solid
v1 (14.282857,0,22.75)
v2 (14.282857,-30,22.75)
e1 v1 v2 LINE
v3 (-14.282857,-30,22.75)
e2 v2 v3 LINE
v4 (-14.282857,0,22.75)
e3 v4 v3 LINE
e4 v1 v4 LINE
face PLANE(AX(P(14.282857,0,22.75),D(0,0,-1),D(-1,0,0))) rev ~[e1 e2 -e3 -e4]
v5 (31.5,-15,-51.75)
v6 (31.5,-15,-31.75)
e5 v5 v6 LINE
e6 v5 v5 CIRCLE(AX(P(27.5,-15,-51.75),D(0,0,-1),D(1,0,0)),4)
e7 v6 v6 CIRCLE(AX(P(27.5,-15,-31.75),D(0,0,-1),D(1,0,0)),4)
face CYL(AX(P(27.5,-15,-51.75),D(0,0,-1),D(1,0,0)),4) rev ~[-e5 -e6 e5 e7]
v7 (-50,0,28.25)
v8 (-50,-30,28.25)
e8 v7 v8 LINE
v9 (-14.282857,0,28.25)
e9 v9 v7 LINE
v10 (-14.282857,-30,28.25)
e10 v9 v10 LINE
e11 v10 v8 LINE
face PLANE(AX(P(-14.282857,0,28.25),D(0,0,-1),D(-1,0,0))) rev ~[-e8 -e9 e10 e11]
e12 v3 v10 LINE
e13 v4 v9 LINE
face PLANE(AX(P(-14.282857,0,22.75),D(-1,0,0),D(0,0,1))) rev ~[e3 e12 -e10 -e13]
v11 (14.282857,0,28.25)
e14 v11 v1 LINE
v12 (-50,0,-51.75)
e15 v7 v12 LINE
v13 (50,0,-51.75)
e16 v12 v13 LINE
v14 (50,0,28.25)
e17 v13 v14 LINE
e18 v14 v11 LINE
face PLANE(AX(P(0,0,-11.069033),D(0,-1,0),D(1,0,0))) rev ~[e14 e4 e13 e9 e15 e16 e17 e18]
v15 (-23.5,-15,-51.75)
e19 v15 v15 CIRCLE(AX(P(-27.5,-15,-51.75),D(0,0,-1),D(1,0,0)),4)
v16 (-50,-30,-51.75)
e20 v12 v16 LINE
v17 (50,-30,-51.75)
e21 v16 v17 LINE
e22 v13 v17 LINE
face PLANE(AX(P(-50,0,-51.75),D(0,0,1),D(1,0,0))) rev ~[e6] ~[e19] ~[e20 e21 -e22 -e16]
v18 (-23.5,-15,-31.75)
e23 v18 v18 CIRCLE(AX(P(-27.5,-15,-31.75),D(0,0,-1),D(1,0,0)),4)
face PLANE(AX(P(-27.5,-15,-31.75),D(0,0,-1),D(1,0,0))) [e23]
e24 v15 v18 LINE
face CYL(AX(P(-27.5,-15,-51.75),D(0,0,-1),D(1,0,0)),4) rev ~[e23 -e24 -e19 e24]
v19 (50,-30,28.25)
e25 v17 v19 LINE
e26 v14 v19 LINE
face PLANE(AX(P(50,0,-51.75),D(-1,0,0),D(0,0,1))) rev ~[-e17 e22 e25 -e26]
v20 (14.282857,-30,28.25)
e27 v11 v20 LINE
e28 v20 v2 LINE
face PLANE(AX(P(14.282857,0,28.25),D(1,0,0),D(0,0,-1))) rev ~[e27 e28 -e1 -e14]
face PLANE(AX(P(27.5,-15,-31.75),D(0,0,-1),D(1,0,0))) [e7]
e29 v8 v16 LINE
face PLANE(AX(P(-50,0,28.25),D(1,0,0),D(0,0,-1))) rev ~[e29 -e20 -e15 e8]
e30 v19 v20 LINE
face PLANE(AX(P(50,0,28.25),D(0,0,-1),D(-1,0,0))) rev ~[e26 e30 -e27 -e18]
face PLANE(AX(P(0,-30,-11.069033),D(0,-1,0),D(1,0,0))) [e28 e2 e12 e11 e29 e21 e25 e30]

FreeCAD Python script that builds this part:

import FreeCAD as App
import Part
import Sketcher


def add_polygon(sketch, points):
    """Adds a closed chain of lines whose ends are joined by coincident constraints."""
    first, n = sketch.GeometryCount, len(points)
    for a, b in zip(points, points[1:] + points[:1]):
        sketch.addGeometry(Part.LineSegment(App.Vector(*a, 0), App.Vector(*b, 0)), False)
    for i in range(n):
        sketch.addConstraint(Sketcher.Constraint("Coincident", first + i, 2, first + (i + 1) % n, 1))

doc = App.newDocument("Part")
body = doc.addObject("PartDesign::Body", "Body")

# Sketch on XZ plane
sketch1 = doc.addObject("Sketcher::SketchObject", "Sketch")
body.addObject(sketch1)
sketch1.AttachmentSupport = (doc.XZ_Plane, [""])
sketch1.MapMode = "FlatFace"
add_polygon(sketch1, [(-50, 28), (-50, -52), (50, -52), (50, 28), (14, 28), (14, 23), (-14, 23), (-14, 28)])  # lines 0-7
sketch1.addConstraint([
    Sketcher.Constraint("Vertical", 0),
    Sketcher.Constraint("Horizontal", 1),
    Sketcher.Constraint("Vertical", 2),
    Sketcher.Constraint("Horizontal", 3),
    Sketcher.Constraint("Vertical", 4),
    Sketcher.Constraint("Horizontal", 5),
    Sketcher.Constraint("Vertical", 6),
    Sketcher.Constraint("Horizontal", 7),
    Sketcher.Constraint("Symmetric", 3, 2, 6, 2, -2),
    Sketcher.Constraint("Equal", 3, 7),
    Sketcher.Constraint("DistanceX", 1, 1, 1, 2, 100.0),
    Sketcher.Constraint("DistanceY", 0, 2, 0, 1, 80.0),
    Sketcher.Constraint("DistanceY", 4, 2, 4, 1, 5.5),
    Sketcher.Constraint("DistanceY", 0, 2, -1, 1, 51.75),
    Sketcher.Constraint("DistanceX", 3, 2, 3, 1, 35.717143),
])
pad1 = doc.addObject("PartDesign::Pad", "Pad")
body.addObject(pad1)
pad1.Profile = sketch1
pad1.Length = 30

# Sketch on XY plane
sketch2 = doc.addObject("Sketcher::SketchObject", "Sketch001")
body.addObject(sketch2)
sketch2.AttachmentSupport = (doc.XY_Plane, [""])
sketch2.MapMode = "FlatFace"
sketch2.AttachmentOffset = App.Placement(App.Vector(0, 0, -51.75), App.Rotation())
sketch2.addGeometry([
    Part.Circle(App.Vector(-27.5, -15, 0), App.Vector(0, 0, 1), 4),
    Part.Circle(App.Vector(27.5, -15, 0), App.Vector(0, 0, 1), 4),
], False)
sketch2.addConstraint([
    Sketcher.Constraint("Equal", 0, 1),
    Sketcher.Constraint("Symmetric", 0, 3, 1, 3, -2),
    Sketcher.Constraint("Diameter", 0, 8.0),
    Sketcher.Constraint("DistanceY", 0, 3, -1, 1, 15.0),
    Sketcher.Constraint("DistanceX", 0, 3, 1, 3, 55.0),
])
pocket1 = doc.addObject("PartDesign::Pocket", "Pocket")
body.addObject(pocket1)
pocket1.Profile = sketch2
pocket1.Length = 20
pocket1.Reversed = True

doc.recompute()
